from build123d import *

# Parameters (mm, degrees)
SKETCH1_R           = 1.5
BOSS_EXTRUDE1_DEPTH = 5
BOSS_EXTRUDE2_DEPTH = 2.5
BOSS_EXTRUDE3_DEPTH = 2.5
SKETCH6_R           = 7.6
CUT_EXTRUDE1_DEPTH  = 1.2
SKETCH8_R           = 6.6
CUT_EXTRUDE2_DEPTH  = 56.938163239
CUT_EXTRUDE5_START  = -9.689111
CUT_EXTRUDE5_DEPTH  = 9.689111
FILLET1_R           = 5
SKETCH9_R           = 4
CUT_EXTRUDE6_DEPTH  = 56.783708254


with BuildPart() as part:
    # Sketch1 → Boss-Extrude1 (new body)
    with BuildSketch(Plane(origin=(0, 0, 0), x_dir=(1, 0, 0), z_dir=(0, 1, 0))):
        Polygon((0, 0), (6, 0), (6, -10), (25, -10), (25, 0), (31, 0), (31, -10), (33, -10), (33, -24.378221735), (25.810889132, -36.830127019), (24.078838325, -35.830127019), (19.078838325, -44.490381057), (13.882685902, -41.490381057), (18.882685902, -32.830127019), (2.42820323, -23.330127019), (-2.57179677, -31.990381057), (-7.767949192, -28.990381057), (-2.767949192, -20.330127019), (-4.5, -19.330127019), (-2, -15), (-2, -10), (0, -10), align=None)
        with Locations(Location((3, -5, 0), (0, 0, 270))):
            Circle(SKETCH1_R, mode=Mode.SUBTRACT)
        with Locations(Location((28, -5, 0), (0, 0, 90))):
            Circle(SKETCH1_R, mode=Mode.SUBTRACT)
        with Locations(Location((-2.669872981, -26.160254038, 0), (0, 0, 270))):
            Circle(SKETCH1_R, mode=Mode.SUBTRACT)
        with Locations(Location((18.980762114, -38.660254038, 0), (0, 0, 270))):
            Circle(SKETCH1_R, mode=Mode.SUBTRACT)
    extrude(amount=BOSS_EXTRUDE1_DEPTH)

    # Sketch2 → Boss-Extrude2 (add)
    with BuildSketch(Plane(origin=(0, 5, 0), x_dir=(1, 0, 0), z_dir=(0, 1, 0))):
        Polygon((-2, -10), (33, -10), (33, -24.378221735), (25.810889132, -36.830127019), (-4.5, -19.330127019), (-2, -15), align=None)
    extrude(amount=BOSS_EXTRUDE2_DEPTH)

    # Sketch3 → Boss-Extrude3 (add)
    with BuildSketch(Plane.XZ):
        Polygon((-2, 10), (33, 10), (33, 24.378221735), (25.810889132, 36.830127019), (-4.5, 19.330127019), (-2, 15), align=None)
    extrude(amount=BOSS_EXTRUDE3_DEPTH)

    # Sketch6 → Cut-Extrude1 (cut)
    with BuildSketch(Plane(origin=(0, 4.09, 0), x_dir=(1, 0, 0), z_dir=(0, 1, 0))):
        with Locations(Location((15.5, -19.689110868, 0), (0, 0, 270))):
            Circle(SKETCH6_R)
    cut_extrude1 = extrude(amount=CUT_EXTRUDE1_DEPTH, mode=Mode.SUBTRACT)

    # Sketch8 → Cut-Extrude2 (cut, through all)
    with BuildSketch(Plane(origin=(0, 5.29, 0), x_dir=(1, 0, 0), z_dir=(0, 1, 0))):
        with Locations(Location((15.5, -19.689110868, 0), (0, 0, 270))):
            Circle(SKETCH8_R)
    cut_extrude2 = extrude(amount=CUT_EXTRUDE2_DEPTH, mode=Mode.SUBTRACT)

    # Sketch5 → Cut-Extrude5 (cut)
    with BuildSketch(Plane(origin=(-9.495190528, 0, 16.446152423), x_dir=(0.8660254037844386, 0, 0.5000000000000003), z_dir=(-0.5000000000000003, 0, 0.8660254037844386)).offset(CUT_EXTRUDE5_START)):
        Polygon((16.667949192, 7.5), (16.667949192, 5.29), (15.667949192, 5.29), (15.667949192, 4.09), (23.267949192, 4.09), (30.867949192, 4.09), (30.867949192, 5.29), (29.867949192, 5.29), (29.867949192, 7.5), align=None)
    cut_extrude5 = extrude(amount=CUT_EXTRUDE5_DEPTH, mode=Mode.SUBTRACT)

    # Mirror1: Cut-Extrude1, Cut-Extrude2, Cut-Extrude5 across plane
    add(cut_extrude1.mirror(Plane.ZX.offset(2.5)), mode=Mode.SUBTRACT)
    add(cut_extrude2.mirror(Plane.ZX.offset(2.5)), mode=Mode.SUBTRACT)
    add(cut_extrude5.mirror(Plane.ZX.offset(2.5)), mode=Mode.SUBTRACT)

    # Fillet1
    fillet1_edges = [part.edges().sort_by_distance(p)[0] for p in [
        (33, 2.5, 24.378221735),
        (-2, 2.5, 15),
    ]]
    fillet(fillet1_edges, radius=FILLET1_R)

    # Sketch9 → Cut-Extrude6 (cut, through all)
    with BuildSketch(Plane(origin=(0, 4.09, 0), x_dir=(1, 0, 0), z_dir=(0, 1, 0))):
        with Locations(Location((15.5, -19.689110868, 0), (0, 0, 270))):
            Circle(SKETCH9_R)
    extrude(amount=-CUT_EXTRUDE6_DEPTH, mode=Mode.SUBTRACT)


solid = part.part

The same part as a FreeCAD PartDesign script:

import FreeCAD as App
import Part
import Sketcher
Q = App.Units.Quantity


def edges_at(feature, points):
    """Names of the edges that pass closest to the given points."""
    edges = feature.Shape.Edges
    near = lambda p: min(range(len(edges)), key=lambda i: edges[i].distToShape(Part.Vertex(*p))[0])
    return sorted({f"Edge{near(p) + 1}" for p in points})

doc = App.newDocument("Part")
body = doc.addObject("PartDesign::Body", "Body")

sketch1 = body.newObject("Sketcher::SketchObject", "Sketch")
sketch1.AttachmentSupport = (doc.getObject("XZ_Plane"), [""])
sketch1.MapMode = "FlatFace"
sketch1.addGeometry([
    Part.LineSegment(App.Vector(6, 0, 0), App.Vector(0, 0, 0)),
    Part.LineSegment(App.Vector(0, 0, 0), App.Vector(0, 10, 0)),
    Part.LineSegment(App.Vector(0, 10, 0), App.Vector(-2, 10, 0)),
    Part.LineSegment(App.Vector(-2, 10, 0), App.Vector(-2, 15, 0)),
    Part.LineSegment(App.Vector(-2, 15, 0), App.Vector(-4.5, 19.330127, 0)),
    Part.LineSegment(App.Vector(-4.5, 19.330127, 0), App.Vector(-2.767949, 20.330127, 0)),
    Part.LineSegment(App.Vector(-2.767949, 20.330127, 0), App.Vector(-7.767949, 28.990381, 0)),
    Part.LineSegment(App.Vector(-7.767949, 28.990381, 0), App.Vector(-2.571797, 31.990381, 0)),
    Part.LineSegment(App.Vector(-2.571797, 31.990381, 0), App.Vector(2.428203, 23.330127, 0)),
    Part.LineSegment(App.Vector(2.428203, 23.330127, 0), App.Vector(18.882686, 32.830127, 0)),
    Part.LineSegment(App.Vector(18.882686, 32.830127, 0), App.Vector(13.882686, 41.490381, 0)),
    Part.LineSegment(App.Vector(13.882686, 41.490381, 0), App.Vector(19.078838, 44.490381, 0)),
    Part.LineSegment(App.Vector(19.078838, 44.490381, 0), App.Vector(24.078838, 35.830127, 0)),
    Part.LineSegment(App.Vector(24.078838, 35.830127, 0), App.Vector(25.810889, 36.830127, 0)),
    Part.LineSegment(App.Vector(25.810889, 36.830127, 0), App.Vector(33, 24.378222, 0)),
    Part.LineSegment(App.Vector(33, 24.378222, 0), App.Vector(33, 10, 0)),
    Part.LineSegment(App.Vector(33, 10, 0), App.Vector(31, 10, 0)),
    Part.LineSegment(App.Vector(31, 10, 0), App.Vector(31, 0, 0)),
    Part.LineSegment(App.Vector(31, 0, 0), App.Vector(25, 0, 0)),
    Part.LineSegment(App.Vector(25, 0, 0), App.Vector(25, 10, 0)),
    Part.LineSegment(App.Vector(25, 10, 0), App.Vector(6, 10, 0)),
    Part.LineSegment(App.Vector(6, 10, 0), App.Vector(6, 0, 0)),
    Part.Circle(App.Vector(18.980762, 38.660254, 0), App.Vector(0, 0, 1), 1.5),
    Part.Circle(App.Vector(-2.669873, 26.160254, 0), App.Vector(0, 0, 1), 1.5),
    Part.Circle(App.Vector(28, 5, 0), App.Vector(0, 0, 1), 1.5),
    Part.Circle(App.Vector(3, 5, 0), App.Vector(0, 0, 1), 1.5),
], False)
sketch1.addConstraint([
    Sketcher.Constraint("Coincident", 0, 2, 1, 1),
    Sketcher.Constraint("Coincident", 1, 2, 2, 1),
    Sketcher.Constraint("Coincident", 2, 2, 3, 1),
    Sketcher.Constraint("Coincident", 3, 2, 4, 1),
    Sketcher.Constraint("Coincident", 4, 2, 5, 1),
    Sketcher.Constraint("Coincident", 5, 2, 6, 1),
    Sketcher.Constraint("Coincident", 6, 2, 7, 1),
    Sketcher.Constraint("Coincident", 7, 2, 8, 1),
    Sketcher.Constraint("Coincident", 8, 2, 9, 1),
    Sketcher.Constraint("Coincident", 9, 2, 10, 1),
    Sketcher.Constraint("Coincident", 10, 2, 11, 1),
    Sketcher.Constraint("Coincident", 11, 2, 12, 1),
    Sketcher.Constraint("Coincident", 12, 2, 13, 1),
    Sketcher.Constraint("Coincident", 13, 2, 14, 1),
    Sketcher.Constraint("Coincident", 14, 2, 15, 1),
    Sketcher.Constraint("Coincident", 15, 2, 16, 1),
    Sketcher.Constraint("Coincident", 16, 2, 17, 1),
    Sketcher.Constraint("Coincident", 17, 2, 18, 1),
    Sketcher.Constraint("Coincident", 18, 2, 19, 1),
    Sketcher.Constraint("Coincident", 19, 2, 20, 1),
    Sketcher.Constraint("Coincident", 20, 2, 21, 1),
    Sketcher.Constraint("Coincident", 21, 2, 0, 1),
    Sketcher.Constraint("Horizontal", 0),
    Sketcher.Constraint("Vertical", 1),
    Sketcher.Constraint("Horizontal", 2),
    Sketcher.Constraint("Vertical", 3),
    Sketcher.Constraint("Vertical", 15),
    Sketcher.Constraint("Horizontal", 16),
    Sketcher.Constraint("Vertical", 17),
    Sketcher.Constraint("Horizontal", 18),
    Sketcher.Constraint("Vertical", 19),
    Sketcher.Constraint("Horizontal", 20),
    Sketcher.Constraint("Vertical", 21),
    Sketcher.Constraint("Coincident", 0, 2, -1, 1),
    Sketcher.Constraint("Equal", 22, 23),
    Sketcher.Constraint("Equal", 23, 24),
    Sketcher.Constraint("Equal", 24, 25),
    Sketcher.Constraint("PointOnObject", 17, 2, -1),
    Sketcher.Constraint("Perpendicular", 4, 5),
    Sketcher.Constraint("Perpendicular", 5, 6),
    Sketcher.Constraint("Perpendicular", 6, 7),
    Sketcher.Constraint("Perpendicular", 7, 8),
    Sketcher.Constraint("Perpendicular", 8, 9),
    Sketcher.Constraint("Perpendicular", 9, 10),
    Sketcher.Constraint("Perpendicular", 10, 11),
    Sketcher.Constraint("Perpendicular", 11, 12),
    Sketcher.Constraint("Perpendicular", 12, 13),
    Sketcher.Constraint("Perpendicular", 13, 14),
    Sketcher.Constraint("Horizontal", 24, 3, 25, 3),
    Sketcher.Constraint("Horizontal", 2, 2, 15, 2),
    Sketcher.Constraint("Horizontal", 16, 2, 19, 2),
    Sketcher.Constraint("Equal", 2, 16),
    Sketcher.Constraint("Equal", 0, 18),
    Sketcher.Constraint("Equal", 6, 8),
    Sketcher.Constraint("Equal", 8, 10),
    Sketcher.Constraint("Equal", 7, 11),
    Sketcher.Constraint("Equal", 10, 12),
    Sketcher.Constraint("Equal", 5, 13),
    Sketcher.Constraint("Diameter", 22, Q("3 mm")),
    Sketcher.Constraint("DistanceX", 0, 2, 0, 1, Q("6 mm")),
    Sketcher.Constraint("DistanceX", 2, 2, 2, 1, Q("2 mm")),
    Sketcher.Constraint("DistanceX", 20, 2, 20, 1, Q("19 mm")),
    Sketcher.Constraint("DistanceY", 1, 1, 1, 2, Q("10 mm")),
    Sketcher.Constraint("DistanceY", 3, 1, 3, 2, Q("5 mm")),
    Sketcher.Constraint("Angle", 4, Q("120 deg")),
    Sketcher.Constraint("Distance", 4, Q("5 mm")),
    Sketcher.Constraint("Distance", 5, Q("2 mm")),
    Sketcher.Constraint("Distance", 6, Q("10 mm")),
    Sketcher.Constraint("Distance", 7, Q("6 mm")),
    Sketcher.Constraint("Distance", 9, Q("19 mm")),
    Sketcher.Constraint("DistanceX", -1, 1, 24, 3, Q("28 mm")),
    Sketcher.Constraint("DistanceY", -1, 1, 24, 3, Q("5 mm")),
    Sketcher.Constraint("DistanceX", -1, 1, 25, 3, Q("3 mm")),
    Sketcher.Constraint("DistanceY", 23, 3, 22, 3, Q("12.5 mm")),
    Sketcher.Constraint("DistanceX", 23, 3, 9, 2, Q("21.552559 mm")),
    Sketcher.Constraint("DistanceX", -1, 1, 22, 3, Q("18.980762 mm")),
    Sketcher.Constraint("DistanceY", -1, 1, 22, 3, Q("38.660254 mm")),
])
pad1 = body.newObject("PartDesign::Pad", "Pad")
pad1.Profile = sketch1
pad1.Length = 5
pad1.Reversed = True

sketch2 = body.newObject("Sketcher::SketchObject", "Sketch001")
sketch2.AttachmentSupport = (doc.getObject("XZ_Plane"), [""])
sketch2.MapMode = "FlatFace"
sketch2.AttachmentOffset = App.Placement(App.Vector(0, 0, -5), App.Rotation())
sketch2.addGeometry([
    Part.LineSegment(App.Vector(33, 10, 0), App.Vector(-2, 10, 0)),
    Part.LineSegment(App.Vector(-2, 10, 0), App.Vector(-2, 15, 0)),
    Part.LineSegment(App.Vector(-2, 15, 0), App.Vector(-4.5, 19.330127, 0)),
    Part.LineSegment(App.Vector(-4.5, 19.330127, 0), App.Vector(25.810889, 36.830127, 0)),
    Part.LineSegment(App.Vector(25.810889, 36.830127, 0), App.Vector(33, 24.378222, 0)),
    Part.LineSegment(App.Vector(33, 24.378222, 0), App.Vector(33, 10, 0)),
], False)
sketch2.addConstraint([
    Sketcher.Constraint("Coincident", 0, 2, 1, 1),
    Sketcher.Constraint("Coincident", 1, 2, 2, 1),
    Sketcher.Constraint("Coincident", 2, 2, 3, 1),
    Sketcher.Constraint("Coincident", 3, 2, 4, 1),
    Sketcher.Constraint("Coincident", 4, 2, 5, 1),
    Sketcher.Constraint("Coincident", 5, 2, 0, 1),
    Sketcher.Constraint("Horizontal", 0),
    Sketcher.Constraint("Vertical", 1),
    Sketcher.Constraint("Vertical", 5),
    Sketcher.Constraint("Perpendicular", 2, 3),
    Sketcher.Constraint("Perpendicular", 3, 4),
    Sketcher.Constraint("DistanceX", 0, 2, 0, 1, Q("35 mm")),
    Sketcher.Constraint("DistanceY", 1, 1, 1, 2, Q("5 mm")),
    Sketcher.Constraint("Angle", 2, Q("120 deg")),
    Sketcher.Constraint("Distance", 2, Q("5 mm")),
    Sketcher.Constraint("Distance", 3, Q("35 mm")),
    Sketcher.Constraint("DistanceX", 0, 2, -1, 1, Q("2 mm")),
    Sketcher.Constraint("DistanceY", -1, 1, 0, 2, Q("10 mm")),
])
pad2 = body.newObject("PartDesign::Pad", "Pad001")
pad2.Profile = sketch2
pad2.Length = 2.5
pad2.Reversed = True

sketch3 = body.newObject("Sketcher::SketchObject", "Sketch002")
sketch3.AttachmentSupport = (doc.getObject("XZ_Plane"), [""])
sketch3.MapMode = "FlatFace"
sketch3.addGeometry([
    Part.LineSegment(App.Vector(-2, 10, 0), App.Vector(33, 10, 0)),
    Part.LineSegment(App.Vector(33, 10, 0), App.Vector(33, 24.378222, 0)),
    Part.LineSegment(App.Vector(33, 24.378222, 0), App.Vector(25.810889, 36.830127, 0)),
    Part.LineSegment(App.Vector(25.810889, 36.830127, 0), App.Vector(-4.5, 19.330127, 0)),
    Part.LineSegment(App.Vector(-4.5, 19.330127, 0), App.Vector(-2, 15, 0)),
    Part.LineSegment(App.Vector(-2, 15, 0), App.Vector(-2, 10, 0)),
], False)
sketch3.addConstraint([
    Sketcher.Constraint("Coincident", 0, 2, 1, 1),
    Sketcher.Constraint("Coincident", 1, 2, 2, 1),
    Sketcher.Constraint("Coincident", 2, 2, 3, 1),
    Sketcher.Constraint("Coincident", 3, 2, 4, 1),
    Sketcher.Constraint("Coincident", 4, 2, 5, 1),
    Sketcher.Constraint("Coincident", 5, 2, 0, 1),
    Sketcher.Constraint("Horizontal", 0),
    Sketcher.Constraint("Vertical", 1),
    Sketcher.Constraint("Vertical", 5),
    Sketcher.Constraint("Perpendicular", 2, 3),
    Sketcher.Constraint("Perpendicular", 3, 4),
    Sketcher.Constraint("DistanceX", 0, 1, 0, 2, Q("35 mm")),
    Sketcher.Constraint("DistanceY", 5, 2, 5, 1, Q("5 mm")),
    Sketcher.Constraint("Angle", 2, Q("120 deg")),
    Sketcher.Constraint("Distance", 3, Q("35 mm")),
    Sketcher.Constraint("Distance", 4, Q("5 mm")),
    Sketcher.Constraint("DistanceX", -1, 1, 0, 2, Q("33 mm")),
    Sketcher.Constraint("DistanceY", -1, 1, 0, 2, Q("10 mm")),
])
pad3 = body.newObject("PartDesign::Pad", "Pad002")
pad3.Profile = sketch3
pad3.Length = 2.5

sketch4 = body.newObject("Sketcher::SketchObject", "Sketch003")
sketch4.AttachmentSupport = (doc.getObject("XZ_Plane"), [""])
sketch4.MapMode = "FlatFace"
sketch4.AttachmentOffset = App.Placement(App.Vector(0, 0, -4.09), App.Rotation())
sketch4.addGeometry(Part.Circle(App.Vector(15.5, 19.689111, 0), App.Vector(0, 0, 1), 7.6), False)
sketch4.addConstraint([
    Sketcher.Constraint("Diameter", 0, Q("15.2 mm")),
    Sketcher.Constraint("DistanceX", -1, 1, 0, 3, Q("15.5 mm")),
    Sketcher.Constraint("DistanceY", -1, 1, 0, 3, Q("19.689111 mm")),
])
pocket1 = body.newObject("PartDesign::Pocket", "Pocket")
pocket1.Profile = sketch4
pocket1.Length = 1.2

sketch5 = body.newObject("Sketcher::SketchObject", "Sketch004")
sketch5.AttachmentSupport = (doc.getObject("XZ_Plane"), [""])
sketch5.MapMode = "FlatFace"
sketch5.AttachmentOffset = App.Placement(App.Vector(0, 0, -5.29), App.Rotation())
sketch5.addGeometry(Part.Circle(App.Vector(15.5, 19.689111, 0), App.Vector(0, 0, 1), 6.6), False)
sketch5.addConstraint([
    Sketcher.Constraint("Diameter", 0, Q("13.2 mm")),
    Sketcher.Constraint("DistanceX", -1, 1, 0, 3, Q("15.5 mm")),
    Sketcher.Constraint("DistanceY", -1, 1, 0, 3, Q("19.689111 mm")),
])
pocket2 = body.newObject("PartDesign::Pocket", "Pocket001")
pocket2.Profile = sketch5
pocket2.Type = "ThroughAll"

sketch6 = body.newObject("Sketcher::SketchObject", "Sketch005")
sketch6.Placement = App.Placement(App.Vector(-4.650635, 0, 8.055136), App.Rotation(App.Vector(0.866025404, 0, 0.5), App.Vector(0, 1, 0), App.Vector(-0.5, 0, 0.866025404), "ZXY"))
sketch6.addGeometry([
    Part.LineSegment(App.Vector(16.667949, 7.5, 0), App.Vector(16.667949, 5.29, 0)),
    Part.LineSegment(App.Vector(16.667949, 5.29, 0), App.Vector(15.667949, 5.29, 0)),
    Part.LineSegment(App.Vector(15.667949, 5.29, 0), App.Vector(15.667949, 4.09, 0)),
    Part.LineSegment(App.Vector(15.667949, 4.09, 0), App.Vector(30.867949, 4.09, 0)),
    Part.LineSegment(App.Vector(30.867949, 4.09, 0), App.Vector(30.867949, 5.29, 0)),
    Part.LineSegment(App.Vector(30.867949, 5.29, 0), App.Vector(29.867949, 5.29, 0)),
    Part.LineSegment(App.Vector(29.867949, 5.29, 0), App.Vector(29.867949, 7.5, 0)),
    Part.LineSegment(App.Vector(29.867949, 7.5, 0), App.Vector(16.667949, 7.5, 0)),
], False)
sketch6.addConstraint([
    Sketcher.Constraint("Coincident", 0, 2, 1, 1),
    Sketcher.Constraint("Coincident", 1, 2, 2, 1),
    Sketcher.Constraint("Coincident", 2, 2, 3, 1),
    Sketcher.Constraint("Coincident", 3, 2, 4, 1),
    Sketcher.Constraint("Coincident", 4, 2, 5, 1),
    Sketcher.Constraint("Coincident", 5, 2, 6, 1),
    Sketcher.Constraint("Coincident", 6, 2, 7, 1),
    Sketcher.Constraint("Coincident", 7, 2, 0, 1),
    Sketcher.Constraint("Vertical", 0),
    Sketcher.Constraint("Horizontal", 1),
    Sketcher.Constraint("Vertical", 2),
    Sketcher.Constraint("Horizontal", 3),
    Sketcher.Constraint("Vertical", 4),
    Sketcher.Constraint("Horizontal", 5),
    Sketcher.Constraint("Vertical", 6),
    Sketcher.Constraint("Horizontal", 7),
    Sketcher.Constraint("Horizontal", 1, 2, 4, 2),
    Sketcher.Constraint("Equal", 1, 5),
    Sketcher.Constraint("DistanceX", 1, 2, 1, 1, Q("1 mm")),
    Sketcher.Constraint("DistanceX", 3, 1, 3, 2, Q("15.2 mm")),
    Sketcher.Constraint("DistanceY", 2, 2, 2, 1, Q("1.2 mm")),
    Sketcher.Constraint("DistanceY", 0, 2, 0, 1, Q("2.21 mm")),
    Sketcher.Constraint("DistanceY", -1, 1, 6, 2, Q("7.5 mm")),
    Sketcher.Constraint("DistanceX", -1, 1, 0, 2, Q("16.667949 mm")),
])
pocket3 = body.newObject("PartDesign::Pocket", "Pocket002")
pocket3.Profile = sketch6
pocket3.Length = 9.689111
pocket3.Reversed = True
doc.recompute()

datumplane = body.newObject("PartDesign::Plane", "DatumPlane")
datumplane.AttachmentSupport = (doc.getObject("XZ_Plane"), [""])
datumplane.MapMode = "FlatFace"
datumplane.AttachmentOffset = App.Placement(App.Vector(0, 0, -2.5), App.Rotation())
mirrored = body.newObject("PartDesign::Mirrored", "Mirrored")
mirrored.Originals = [pocket1, pocket2, pocket3]
mirrored.MirrorPlane = (datumplane, [""])
body.Tip = mirrored
doc.recompute()

fillet = body.newObject("PartDesign::Fillet", "Fillet")
fillet.Base = (mirrored, edges_at(mirrored, [(33, 2.5, 24.378), (-2, 2.5, 15)]))
fillet.Radius = 5

sketch7 = body.newObject("Sketcher::SketchObject", "Sketch006")
sketch7.AttachmentSupport = (doc.getObject("XZ_Plane"), [""])
sketch7.MapMode = "FlatFace"
sketch7.AttachmentOffset = App.Placement(App.Vector(0, 0, -4.09), App.Rotation())
sketch7.addGeometry(Part.Circle(App.Vector(15.5, 19.689111, 0), App.Vector(0, 0, 1), 4), False)
sketch7.addConstraint([
    Sketcher.Constraint("Diameter", 0, Q("8 mm")),
    Sketcher.Constraint("DistanceX", -1, 1, 0, 3, Q("15.5 mm")),
    Sketcher.Constraint("DistanceY", -1, 1, 0, 3, Q("19.689111 mm")),
])
pocket4 = body.newObject("PartDesign::Pocket", "Pocket003")
pocket4.Profile = sketch7
pocket4.Type = "ThroughAll"
pocket4.Reversed = True

doc.recompute()
